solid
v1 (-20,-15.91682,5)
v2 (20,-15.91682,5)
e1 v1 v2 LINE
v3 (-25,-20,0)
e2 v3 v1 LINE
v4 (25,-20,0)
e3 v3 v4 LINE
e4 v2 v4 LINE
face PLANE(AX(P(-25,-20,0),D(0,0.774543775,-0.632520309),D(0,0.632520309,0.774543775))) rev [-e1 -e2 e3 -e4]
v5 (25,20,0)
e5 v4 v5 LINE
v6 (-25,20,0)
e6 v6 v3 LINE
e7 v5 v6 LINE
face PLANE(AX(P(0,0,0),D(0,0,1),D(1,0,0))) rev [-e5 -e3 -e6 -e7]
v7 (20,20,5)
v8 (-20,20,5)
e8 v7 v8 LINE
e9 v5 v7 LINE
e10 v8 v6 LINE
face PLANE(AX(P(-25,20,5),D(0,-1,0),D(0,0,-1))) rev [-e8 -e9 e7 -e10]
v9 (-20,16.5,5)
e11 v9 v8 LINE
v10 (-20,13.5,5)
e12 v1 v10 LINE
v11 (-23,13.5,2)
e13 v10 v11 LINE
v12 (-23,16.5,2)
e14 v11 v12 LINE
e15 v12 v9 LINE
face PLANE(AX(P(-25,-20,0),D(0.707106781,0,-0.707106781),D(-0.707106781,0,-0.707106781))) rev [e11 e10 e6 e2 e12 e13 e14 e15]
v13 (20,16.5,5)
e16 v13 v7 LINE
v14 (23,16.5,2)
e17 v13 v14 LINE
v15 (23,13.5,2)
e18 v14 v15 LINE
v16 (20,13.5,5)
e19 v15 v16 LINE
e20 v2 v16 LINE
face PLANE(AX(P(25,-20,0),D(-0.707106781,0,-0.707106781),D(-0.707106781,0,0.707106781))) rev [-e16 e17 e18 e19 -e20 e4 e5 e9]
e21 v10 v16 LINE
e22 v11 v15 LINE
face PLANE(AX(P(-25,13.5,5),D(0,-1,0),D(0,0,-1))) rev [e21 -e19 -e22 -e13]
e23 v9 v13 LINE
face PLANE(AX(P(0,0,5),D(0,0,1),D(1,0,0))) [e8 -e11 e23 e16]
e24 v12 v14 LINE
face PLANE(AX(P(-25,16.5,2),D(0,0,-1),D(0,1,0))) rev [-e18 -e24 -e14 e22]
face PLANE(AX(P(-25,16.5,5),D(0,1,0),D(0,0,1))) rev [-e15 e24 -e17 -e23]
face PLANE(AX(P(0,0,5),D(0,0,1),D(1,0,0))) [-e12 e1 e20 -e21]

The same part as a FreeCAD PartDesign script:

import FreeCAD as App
import Part
import Sketcher

doc = App.newDocument("Part")
body = doc.addObject("PartDesign::Body", "Body")

# Sketch on XY plane
sketch1 = body.newObject("Sketcher::SketchObject", "Sketch")
sketch1.AttachmentSupport = (doc.getObject("XY_Plane"), [""])
sketch1.MapMode = "FlatFace"
sketch1.addGeometry([
    Part.LineSegment(App.Vector(-25, 20, 0), App.Vector(-25, -20, 0)),
    Part.LineSegment(App.Vector(-25, -20, 0), App.Vector(25, -20, 0)),
    Part.LineSegment(App.Vector(25, -20, 0), App.Vector(25, 20, 0)),
    Part.LineSegment(App.Vector(25, 20, 0), App.Vector(-25, 20, 0)),
], False)
sketch1.addConstraint([
    Sketcher.Constraint("Coincident", 0, 2, 1, 1),
    Sketcher.Constraint("Coincident", 1, 2, 2, 1),
    Sketcher.Constraint("Coincident", 2, 2, 3, 1),
    Sketcher.Constraint("Coincident", 3, 2, 0, 1),
    Sketcher.Constraint("Vertical", 0),
    Sketcher.Constraint("Horizontal", 1),
    Sketcher.Constraint("Vertical", 2),
    Sketcher.Constraint("Horizontal", 3),
    Sketcher.Constraint("Symmetric", 0, 2, 2, 2, -1, 1),
    Sketcher.Constraint("DistanceX", 1, 1, 1, 2, 50.0),
    Sketcher.Constraint("DistanceY", 0, 2, 0, 1, 40.0),
])
pad1 = body.newObject("PartDesign::Pad", "Pad")
pad1.Profile = sketch1
pad1.Length = 5

# Sketch on XZ plane
sketch2 = body.newObject("Sketcher::SketchObject", "Sketch001")
sketch2.AttachmentSupport = (doc.getObject("XZ_Plane"), [""])
sketch2.MapMode = "FlatFace"
sketch2.addGeometry([
    Part.LineSegment(App.Vector(-20, 5, 0), App.Vector(-25, 0, 0)),  # 0
    Part.LineSegment(App.Vector(-25, 0, 0), App.Vector(-25, 5, 0)),  # 1
    Part.LineSegment(App.Vector(-25, 5, 0), App.Vector(-20, 5, 0)),  # 2
    Part.LineSegment(App.Vector(25, 0, 0), App.Vector(20, 5, 0)),  # 3
    Part.LineSegment(App.Vector(20, 5, 0), App.Vector(25, 5, 0)),  # 4
    Part.LineSegment(App.Vector(25, 5, 0), App.Vector(25, 0, 0)),  # 5
], False)
sketch2.addConstraint([
    Sketcher.Constraint("Coincident", 0, 2, 1, 1),
    Sketcher.Constraint("Coincident", 1, 2, 2, 1),
    Sketcher.Constraint("Coincident", 2, 2, 0, 1),
    Sketcher.Constraint("Coincident", 3, 2, 4, 1),
    Sketcher.Constraint("Coincident", 4, 2, 5, 1),
    Sketcher.Constraint("Coincident", 5, 2, 3, 1),
    Sketcher.Constraint("Vertical", 1),
    Sketcher.Constraint("Horizontal", 2),
    Sketcher.Constraint("Horizontal", 4),
    Sketcher.Constraint("Vertical", 5),
    Sketcher.Constraint("Symmetric", 0, 2, 5, 2, -1, 1),
    Sketcher.Constraint("Symmetric", 2, 2, 3, 2, -2),
    Sketcher.Constraint("PointOnObject", 0, 2, -1),
    Sketcher.Constraint("Perpendicular", 0, 3),
    Sketcher.Constraint("DistanceX", 2, 1, 2, 2, 5.0),
    Sketcher.Constraint("DistanceX", 0, 2, -1, 1, 25.0),
])
pocket1 = body.newObject("PartDesign::Pocket", "Pocket")
pocket1.Profile = sketch2
pocket1.Type = "ThroughAll"
pocket1.Midplane = True

# Sketch on YZ plane
sketch3 = body.newObject("Sketcher::SketchObject", "Sketch002")
sketch3.AttachmentSupport = (doc.getObject("YZ_Plane"), [""])
sketch3.MapMode = "FlatFace"
sketch3.addGeometry([
    Part.LineSegment(App.Vector(-20, 0, 0), App.Vector(-15.91682, 5, 0)),
    Part.LineSegment(App.Vector(-15.91682, 5, 0), App.Vector(-20, 5, 0)),
    Part.LineSegment(App.Vector(-20, 5, 0), App.Vector(-20, 0, 0)),
], False)
sketch3.addConstraint([
    Sketcher.Constraint("Coincident", 0, 2, 1, 1),
    Sketcher.Constraint("Coincident", 1, 2, 2, 1),
    Sketcher.Constraint("Coincident", 2, 2, 0, 1),
    Sketcher.Constraint("Horizontal", 1),
    Sketcher.Constraint("Vertical", 2),
    Sketcher.Constraint("PointOnObject", 2, 2, -1),
    Sketcher.Constraint("DistanceY", 2, 2, 2, 1, 5.0),
    Sketcher.Constraint("DistanceX", 1, 2, -1, 1, 20.0),
    Sketcher.Constraint("DistanceX", 1, 2, 1, 1, 4.08318),
])
pocket2 = body.newObject("PartDesign::Pocket", "Pocket001")
pocket2.Profile = sketch3
pocket2.Type = "ThroughAll"
pocket2.Midplane = True

# Sketch on YZ plane
sketch4 = body.newObject("Sketcher::SketchObject", "Sketch003")
sketch4.AttachmentSupport = (doc.getObject("YZ_Plane"), [""])
sketch4.MapMode = "FlatFace"
sketch4.addGeometry([
    Part.LineSegment(App.Vector(16.5, 5, 0), App.Vector(13.5, 5, 0)),
    Part.LineSegment(App.Vector(13.5, 5, 0), App.Vector(13.5, 2, 0)),
    Part.LineSegment(App.Vector(13.5, 2, 0), App.Vector(16.5, 2, 0)),
    Part.LineSegment(App.Vector(16.5, 2, 0), App.Vector(16.5, 5, 0)),
], False)
sketch4.addConstraint([
    Sketcher.Constraint("Coincident", 0, 2, 1, 1),
    Sketcher.Constraint("Coincident", 1, 2, 2, 1),
    Sketcher.Constraint("Coincident", 2, 2, 3, 1),
    Sketcher.Constraint("Coincident", 3, 2, 0, 1),
    Sketcher.Constraint("Horizontal", 0),
    Sketcher.Constraint("Vertical", 1),
    Sketcher.Constraint("Horizontal", 2),
    Sketcher.Constraint("Vertical", 3),
    Sketcher.Constraint("Equal", 2, 1),
    Sketcher.Constraint("DistanceX", 0, 2, 0, 1, 3.0),
    Sketcher.Constraint("DistanceY", -1, 1, 0, 2, 5.0),
    Sketcher.Constraint("DistanceX", -1, 1, 0, 2, 13.5),
])
pocket3 = body.newObject("PartDesign::Pocket", "Pocket002")
pocket3.Profile = sketch4
pocket3.Type = "ThroughAll"
pocket3.Midplane = True

doc.recompute()
